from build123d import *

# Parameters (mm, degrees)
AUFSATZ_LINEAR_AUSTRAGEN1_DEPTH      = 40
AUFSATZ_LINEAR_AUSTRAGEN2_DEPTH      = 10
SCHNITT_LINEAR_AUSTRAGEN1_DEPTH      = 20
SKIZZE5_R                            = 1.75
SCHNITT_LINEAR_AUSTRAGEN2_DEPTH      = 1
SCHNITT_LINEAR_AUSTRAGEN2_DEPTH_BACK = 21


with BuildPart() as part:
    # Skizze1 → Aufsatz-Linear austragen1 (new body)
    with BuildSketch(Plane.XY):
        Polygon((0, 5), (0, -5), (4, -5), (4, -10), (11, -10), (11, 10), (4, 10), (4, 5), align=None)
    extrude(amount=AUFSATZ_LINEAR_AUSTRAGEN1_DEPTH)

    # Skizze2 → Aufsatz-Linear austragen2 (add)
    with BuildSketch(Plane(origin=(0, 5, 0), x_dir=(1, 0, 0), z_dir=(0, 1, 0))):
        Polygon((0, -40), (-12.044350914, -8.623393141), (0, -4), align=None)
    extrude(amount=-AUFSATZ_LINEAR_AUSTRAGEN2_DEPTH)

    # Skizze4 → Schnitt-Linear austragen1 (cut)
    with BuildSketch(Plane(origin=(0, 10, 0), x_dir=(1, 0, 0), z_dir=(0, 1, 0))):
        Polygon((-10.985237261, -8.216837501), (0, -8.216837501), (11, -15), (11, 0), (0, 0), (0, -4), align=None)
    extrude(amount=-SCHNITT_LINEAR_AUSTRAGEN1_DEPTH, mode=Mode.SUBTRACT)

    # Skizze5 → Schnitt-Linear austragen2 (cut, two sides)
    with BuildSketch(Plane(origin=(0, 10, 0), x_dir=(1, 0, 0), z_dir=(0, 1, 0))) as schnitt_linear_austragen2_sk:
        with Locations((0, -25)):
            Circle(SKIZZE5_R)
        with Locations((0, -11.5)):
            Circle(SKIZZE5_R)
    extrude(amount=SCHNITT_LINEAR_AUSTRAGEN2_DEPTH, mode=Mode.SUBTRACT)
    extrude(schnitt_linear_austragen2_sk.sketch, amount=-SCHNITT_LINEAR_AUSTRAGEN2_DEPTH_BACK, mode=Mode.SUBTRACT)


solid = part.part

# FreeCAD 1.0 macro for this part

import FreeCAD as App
import Part
import Sketcher
from FreeCAD import Vector
Q = App.Units.Quantity


def add_polygon(sketch, points):
    """Adds a closed chain of lines whose ends are joined by coincident constraints."""
    first, n = sketch.GeometryCount, len(points)
    for a, b in zip(points, points[1:] + points[:1]):
        sketch.addGeometry(Part.LineSegment(App.Vector(*a, 0), App.Vector(*b, 0)), False)
    for i in range(n):
        sketch.addConstraint(Sketcher.Constraint("Coincident", first + i, 2, first + (i + 1) % n, 1))

doc = App.newDocument("Part")
body = doc.addObject("PartDesign::Body", "Body")

# Sketch on XY plane
sketch1 = doc.addObject("Sketcher::SketchObject", "Sketch")
body.addObject(sketch1)
sketch1.AttachmentSupport = (doc.XY_Plane, [""])
sketch1.MapMode = "FlatFace"
add_polygon(sketch1, [(0, 5), (0, -5), (4, -5), (4, -10), (11, -10), (11, 10), (4, 10), (4, 5)])  # lines 0-7
sketch1.addConstraint([
    Sketcher.Constraint("Vertical", 0),
    Sketcher.Constraint("Horizontal", 1),
    Sketcher.Constraint("Vertical", 2),
    Sketcher.Constraint("Horizontal", 3),
    Sketcher.Constraint("Vertical", 4),
    Sketcher.Constraint("Horizontal", 5),
    Sketcher.Constraint("Vertical", 6),
    Sketcher.Constraint("Horizontal", 7),
    Sketcher.Constraint("Symmetric", 0, 2, 7, 2, -1, 1),
    Sketcher.Constraint("Symmetric", 2, 2, 5, 2, -1),
    Sketcher.Constraint("DistanceX", 1, 1, 1, 2, 4.0),
    Sketcher.Constraint("DistanceX", 3, 1, 3, 2, 7.0),
    Sketcher.Constraint("DistanceY", 0, 2, 0, 1, 10.0),
    Sketcher.Constraint("DistanceY", 2, 2, 2, 1, 5.0),
])
pad1 = doc.addObject("PartDesign::Pad", "Pad")
body.addObject(pad1)
pad1.Profile = sketch1
pad1.Length = 40

# Sketch on XZ plane
sketch2 = doc.addObject("Sketcher::SketchObject", "Sketch001")
body.addObject(sketch2)
sketch2.AttachmentSupport = (doc.XZ_Plane, [""])
sketch2.MapMode = "FlatFace"
sketch2.AttachmentOffset = App.Placement(Vector(0, 0, -5), App.Rotation())
add_polygon(sketch2, [(-12.044351, 8.623393), (0, 40), (0, 4)])  # lines 0-2
sketch2.addConstraint([
    Sketcher.Constraint("Vertical", 1),
    Sketcher.Constraint("PointOnObject", 0, 2, -2),
    Sketcher.Constraint("Perpendicular", 0, 2),
    Sketcher.Constraint("DistanceY", 1, 2, 1, 1, 36.0),
    Sketcher.Constraint("Angle", 0, Q("69 deg")),
    Sketcher.Constraint("DistanceY", -1, 1, 0, 2, 40.0),
])
pad2 = doc.addObject("PartDesign::Pad", "Pad001")
body.addObject(pad2)
pad2.Profile = sketch2
pad2.Length = 10

# Sketch on XZ plane
sketch3 = doc.addObject("Sketcher::SketchObject", "Sketch002")
body.addObject(sketch3)
sketch3.AttachmentSupport = (doc.XZ_Plane, [""])
sketch3.MapMode = "FlatFace"
sketch3.AttachmentOffset = App.Placement(Vector(0, 0, -10), App.Rotation())
add_polygon(sketch3, [(-10.985237, 8.216838), (0, 8.216838), (11, 15), (11, 0), (0, 0), (0, 4)])  # lines 0-5
sketch3.addConstraint([
    Sketcher.Constraint("Horizontal", 0),
    Sketcher.Constraint("Vertical", 2),
    Sketcher.Constraint("Horizontal", 3),
    Sketcher.Constraint("Vertical", 4),
    Sketcher.Constraint("Coincident", 3, 2, -1, 1),
    Sketcher.Constraint("PointOnObject", 0, 2, -2),
    Sketcher.Constraint("DistanceX", 3, 2, 3, 1, 11.0),
    Sketcher.Constraint("DistanceY", 2, 2, 2, 1, 15.0),
    Sketcher.Constraint("DistanceY", 4, 1, 4, 2, 4.0),
    Sketcher.Constraint("Angle", 5, Q("159 deg")),
    Sketcher.Constraint("Distance", 5, 11.766782),
])
pocket1 = doc.addObject("PartDesign::Pocket", "Pocket")
body.addObject(pocket1)
pocket1.Profile = sketch3
pocket1.Length = 20
pocket1.Reversed = True

# Sketch on XZ plane
sketch4 = doc.addObject("Sketcher::SketchObject", "Sketch003")
body.addObject(sketch4)
sketch4.AttachmentSupport = (doc.XZ_Plane, [""])
sketch4.MapMode = "FlatFace"
sketch4.AttachmentOffset = App.Placement(Vector(0, 0, -10), App.Rotation())
sketch4.addGeometry([
    Part.Circle(Vector(0, 25, 0), Vector(0, 0, 1), 1.75),
    Part.Circle(Vector(0, 11.5, 0), Vector(0, 0, 1), 1.75),
], False)
sketch4.addConstraint([
    Sketcher.Constraint("Equal", 0, 1),
    Sketcher.Constraint("PointOnObject", 0, 3, -2),
    Sketcher.Constraint("PointOnObject", 1, 3, -2),
    Sketcher.Constraint("Diameter", 0, 3.5),
    Sketcher.Constraint("DistanceY", -1, 1, 0, 3, 25.0),
    Sketcher.Constraint("DistanceY", -1, 1, 1, 3, 11.5),
])
pocket2 = doc.addObject("PartDesign::Pocket", "Pocket001")
body.addObject(pocket2)
pocket2.Profile = sketch4
pocket2.Type = "ThroughAll"
pocket2.Midplane = True

doc.recompute()
